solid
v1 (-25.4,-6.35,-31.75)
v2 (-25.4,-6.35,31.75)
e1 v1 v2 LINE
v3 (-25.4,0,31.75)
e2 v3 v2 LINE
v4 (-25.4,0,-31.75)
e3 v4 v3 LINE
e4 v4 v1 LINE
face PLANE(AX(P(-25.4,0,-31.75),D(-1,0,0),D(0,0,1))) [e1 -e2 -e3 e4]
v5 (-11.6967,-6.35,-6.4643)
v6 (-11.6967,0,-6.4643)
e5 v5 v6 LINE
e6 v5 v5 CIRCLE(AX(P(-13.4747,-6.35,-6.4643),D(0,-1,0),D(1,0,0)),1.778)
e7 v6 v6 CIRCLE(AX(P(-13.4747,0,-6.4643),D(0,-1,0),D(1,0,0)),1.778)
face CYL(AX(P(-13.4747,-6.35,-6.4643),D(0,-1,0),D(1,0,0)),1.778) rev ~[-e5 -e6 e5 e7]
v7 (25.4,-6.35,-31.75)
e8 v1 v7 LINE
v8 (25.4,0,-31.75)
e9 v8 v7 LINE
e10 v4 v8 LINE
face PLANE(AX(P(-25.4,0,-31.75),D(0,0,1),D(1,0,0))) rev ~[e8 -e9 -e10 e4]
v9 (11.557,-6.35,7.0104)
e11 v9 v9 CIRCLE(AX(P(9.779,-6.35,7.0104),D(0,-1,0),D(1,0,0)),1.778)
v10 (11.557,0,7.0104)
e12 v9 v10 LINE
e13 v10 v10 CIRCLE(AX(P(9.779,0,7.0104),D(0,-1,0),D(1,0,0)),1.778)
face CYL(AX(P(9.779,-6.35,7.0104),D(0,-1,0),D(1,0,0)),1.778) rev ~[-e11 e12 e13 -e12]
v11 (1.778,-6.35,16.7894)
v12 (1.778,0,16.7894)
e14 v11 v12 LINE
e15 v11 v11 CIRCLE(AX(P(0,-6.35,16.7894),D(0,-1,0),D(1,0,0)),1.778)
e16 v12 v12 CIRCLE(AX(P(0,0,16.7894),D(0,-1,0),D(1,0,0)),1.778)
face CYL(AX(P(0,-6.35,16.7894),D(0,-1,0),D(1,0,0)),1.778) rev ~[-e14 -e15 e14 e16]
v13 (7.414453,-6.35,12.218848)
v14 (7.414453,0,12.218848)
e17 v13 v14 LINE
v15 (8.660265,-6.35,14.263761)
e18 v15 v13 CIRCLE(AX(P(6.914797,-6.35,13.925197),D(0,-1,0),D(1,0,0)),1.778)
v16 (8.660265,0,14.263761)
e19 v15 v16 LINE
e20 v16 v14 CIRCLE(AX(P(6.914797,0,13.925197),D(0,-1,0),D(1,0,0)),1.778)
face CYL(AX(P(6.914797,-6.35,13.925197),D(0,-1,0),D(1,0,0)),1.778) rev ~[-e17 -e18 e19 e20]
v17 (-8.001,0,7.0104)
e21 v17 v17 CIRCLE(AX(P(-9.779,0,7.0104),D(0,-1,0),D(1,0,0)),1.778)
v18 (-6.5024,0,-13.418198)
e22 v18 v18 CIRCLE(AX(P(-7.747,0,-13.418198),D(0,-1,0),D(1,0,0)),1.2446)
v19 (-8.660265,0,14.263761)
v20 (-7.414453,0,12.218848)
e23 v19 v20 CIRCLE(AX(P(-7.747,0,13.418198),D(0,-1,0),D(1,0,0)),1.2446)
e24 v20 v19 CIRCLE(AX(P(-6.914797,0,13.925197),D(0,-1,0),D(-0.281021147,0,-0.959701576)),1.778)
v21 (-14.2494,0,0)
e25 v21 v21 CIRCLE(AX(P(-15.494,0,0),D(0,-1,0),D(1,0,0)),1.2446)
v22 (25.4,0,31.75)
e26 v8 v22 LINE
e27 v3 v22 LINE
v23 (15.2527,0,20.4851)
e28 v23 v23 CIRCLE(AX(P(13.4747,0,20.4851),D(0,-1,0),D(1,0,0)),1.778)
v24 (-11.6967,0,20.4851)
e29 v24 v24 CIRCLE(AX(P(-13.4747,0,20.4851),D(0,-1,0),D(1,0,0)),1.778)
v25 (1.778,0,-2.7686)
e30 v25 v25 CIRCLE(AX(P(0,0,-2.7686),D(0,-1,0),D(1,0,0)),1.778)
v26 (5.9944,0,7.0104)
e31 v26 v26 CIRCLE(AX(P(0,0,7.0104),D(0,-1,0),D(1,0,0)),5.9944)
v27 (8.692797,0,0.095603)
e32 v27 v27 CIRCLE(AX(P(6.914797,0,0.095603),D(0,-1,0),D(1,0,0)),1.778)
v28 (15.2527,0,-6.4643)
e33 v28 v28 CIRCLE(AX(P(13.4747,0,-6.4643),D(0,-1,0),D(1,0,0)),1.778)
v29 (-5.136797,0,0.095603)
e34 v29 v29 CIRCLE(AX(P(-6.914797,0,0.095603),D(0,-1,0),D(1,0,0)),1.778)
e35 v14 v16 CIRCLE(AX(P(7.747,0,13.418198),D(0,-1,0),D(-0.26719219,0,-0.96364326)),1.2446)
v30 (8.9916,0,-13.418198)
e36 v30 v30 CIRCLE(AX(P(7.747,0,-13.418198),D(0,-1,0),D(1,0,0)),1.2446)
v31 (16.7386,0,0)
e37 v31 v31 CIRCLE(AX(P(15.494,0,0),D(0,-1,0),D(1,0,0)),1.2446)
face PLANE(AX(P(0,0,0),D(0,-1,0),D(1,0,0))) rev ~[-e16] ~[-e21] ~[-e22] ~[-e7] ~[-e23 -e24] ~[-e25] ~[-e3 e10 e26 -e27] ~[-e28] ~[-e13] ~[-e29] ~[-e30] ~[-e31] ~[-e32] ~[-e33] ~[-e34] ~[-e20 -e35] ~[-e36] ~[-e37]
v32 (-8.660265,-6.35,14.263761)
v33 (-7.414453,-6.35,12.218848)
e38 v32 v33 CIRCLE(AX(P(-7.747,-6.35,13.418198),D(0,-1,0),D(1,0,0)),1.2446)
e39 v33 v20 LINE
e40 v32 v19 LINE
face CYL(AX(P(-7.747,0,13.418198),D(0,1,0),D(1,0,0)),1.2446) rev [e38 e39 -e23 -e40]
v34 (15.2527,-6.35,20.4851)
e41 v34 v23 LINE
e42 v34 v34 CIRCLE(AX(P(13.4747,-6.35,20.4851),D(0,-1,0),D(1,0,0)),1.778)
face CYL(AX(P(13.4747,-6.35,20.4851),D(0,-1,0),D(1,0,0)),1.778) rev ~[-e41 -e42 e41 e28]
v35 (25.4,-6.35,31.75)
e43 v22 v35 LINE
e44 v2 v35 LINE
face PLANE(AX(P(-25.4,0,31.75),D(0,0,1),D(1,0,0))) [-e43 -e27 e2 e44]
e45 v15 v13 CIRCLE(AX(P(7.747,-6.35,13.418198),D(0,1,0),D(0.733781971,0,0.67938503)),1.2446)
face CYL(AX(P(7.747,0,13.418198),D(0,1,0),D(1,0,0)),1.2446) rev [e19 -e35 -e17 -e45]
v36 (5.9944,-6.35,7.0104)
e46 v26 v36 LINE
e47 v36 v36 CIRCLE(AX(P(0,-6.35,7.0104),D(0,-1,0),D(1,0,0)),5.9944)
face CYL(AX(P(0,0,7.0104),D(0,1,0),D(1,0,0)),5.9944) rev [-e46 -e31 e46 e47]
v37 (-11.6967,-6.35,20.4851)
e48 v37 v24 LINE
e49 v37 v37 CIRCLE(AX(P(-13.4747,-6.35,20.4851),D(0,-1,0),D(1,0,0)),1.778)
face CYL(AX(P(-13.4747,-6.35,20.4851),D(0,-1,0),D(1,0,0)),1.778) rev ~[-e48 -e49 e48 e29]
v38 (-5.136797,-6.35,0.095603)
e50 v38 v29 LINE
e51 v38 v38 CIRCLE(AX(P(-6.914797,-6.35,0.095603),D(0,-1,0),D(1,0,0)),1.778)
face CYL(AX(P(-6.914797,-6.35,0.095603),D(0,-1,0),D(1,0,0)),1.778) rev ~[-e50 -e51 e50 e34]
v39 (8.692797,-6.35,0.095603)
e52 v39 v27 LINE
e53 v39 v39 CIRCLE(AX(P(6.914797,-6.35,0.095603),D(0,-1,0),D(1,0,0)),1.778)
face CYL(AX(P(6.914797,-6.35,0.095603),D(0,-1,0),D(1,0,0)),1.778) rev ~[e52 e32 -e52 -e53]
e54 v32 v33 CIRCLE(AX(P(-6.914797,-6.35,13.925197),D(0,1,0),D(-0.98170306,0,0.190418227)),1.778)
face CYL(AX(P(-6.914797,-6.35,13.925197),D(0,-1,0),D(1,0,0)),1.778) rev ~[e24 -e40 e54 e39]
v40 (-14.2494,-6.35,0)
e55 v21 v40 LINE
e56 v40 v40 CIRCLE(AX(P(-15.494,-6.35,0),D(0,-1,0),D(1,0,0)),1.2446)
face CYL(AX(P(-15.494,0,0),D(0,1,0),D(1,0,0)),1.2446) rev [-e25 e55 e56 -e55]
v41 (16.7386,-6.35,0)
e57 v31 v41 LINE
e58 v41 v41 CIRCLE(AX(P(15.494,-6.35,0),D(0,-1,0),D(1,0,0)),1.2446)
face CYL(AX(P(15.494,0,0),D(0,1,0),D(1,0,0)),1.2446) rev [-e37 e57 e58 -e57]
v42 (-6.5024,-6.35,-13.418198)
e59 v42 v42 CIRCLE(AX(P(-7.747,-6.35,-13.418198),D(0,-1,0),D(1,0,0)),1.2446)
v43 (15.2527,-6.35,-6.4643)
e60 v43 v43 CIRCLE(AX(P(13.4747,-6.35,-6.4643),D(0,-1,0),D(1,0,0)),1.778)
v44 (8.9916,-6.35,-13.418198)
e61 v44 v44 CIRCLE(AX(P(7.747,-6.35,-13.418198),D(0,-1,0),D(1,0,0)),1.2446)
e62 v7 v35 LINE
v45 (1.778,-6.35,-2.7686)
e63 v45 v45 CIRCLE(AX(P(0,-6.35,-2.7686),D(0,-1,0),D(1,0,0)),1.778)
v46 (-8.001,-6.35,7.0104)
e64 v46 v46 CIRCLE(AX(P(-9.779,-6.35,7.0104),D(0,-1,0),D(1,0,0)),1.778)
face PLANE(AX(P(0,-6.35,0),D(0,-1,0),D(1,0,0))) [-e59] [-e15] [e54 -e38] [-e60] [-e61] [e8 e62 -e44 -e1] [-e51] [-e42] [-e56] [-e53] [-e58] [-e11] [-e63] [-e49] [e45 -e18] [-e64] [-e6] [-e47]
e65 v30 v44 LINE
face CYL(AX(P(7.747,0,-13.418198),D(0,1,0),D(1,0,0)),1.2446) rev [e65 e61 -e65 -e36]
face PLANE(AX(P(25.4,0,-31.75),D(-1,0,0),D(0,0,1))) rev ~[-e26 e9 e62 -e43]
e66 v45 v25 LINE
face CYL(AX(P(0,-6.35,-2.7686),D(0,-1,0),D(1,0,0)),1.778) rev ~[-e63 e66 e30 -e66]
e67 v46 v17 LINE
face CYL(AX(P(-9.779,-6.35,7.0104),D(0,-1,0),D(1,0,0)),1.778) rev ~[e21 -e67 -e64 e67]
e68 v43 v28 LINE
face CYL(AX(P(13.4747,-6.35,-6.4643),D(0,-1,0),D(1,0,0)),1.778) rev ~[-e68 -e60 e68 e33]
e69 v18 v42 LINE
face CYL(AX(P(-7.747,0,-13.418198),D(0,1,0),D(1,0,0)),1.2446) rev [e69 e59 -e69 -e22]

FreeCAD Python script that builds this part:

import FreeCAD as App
import Part
import Sketcher

V = App.Vector
Q = App.Units.Quantity

doc = App.newDocument("Part")
params = doc.addObject("Spreadsheet::Sheet", "Params")
for row, (alias, value) in enumerate([
    ("sketch1_width", "2 in"),
    ("sketch1_diameter", "0.098 in"),
    ("sketch1_diameter2", "0.472 in"),
    ("sketch1_height", "2.5 in"),
    ("pad1_length", "0.25 in"),
    ("sketch2_diameter", "0.14 in"),
    ("pocket1_length", "1 in"),
], start=1):
    params.set(f"A{row}", alias)
    params.set(f"B{row}", "=" + value)
    params.setAlias(f"B{row}", alias)

body = doc.addObject("PartDesign::Body", "Body")

# Sketch on XZ plane
sketch1 = body.newObject("Sketcher::SketchObject", "Sketch")
sketch1.AttachmentSupport = (doc.getObject("XZ_Plane"), [""])
sketch1.MapMode = "FlatFace"
sketch1.addGeometry([
    Part.LineSegment(V(-25.4, 31.8, 0), V(-25.4, -31.8, 0)),  # 0
    Part.LineSegment(V(-25.4, -31.8, 0), V(25.4, -31.8, 0)),  # 1
    Part.LineSegment(V(25.4, -31.8, 0), V(25.4, 31.8, 0)),  # 2
    Part.LineSegment(V(25.4, 31.8, 0), V(-25.4, 31.8, 0)),  # 3
    Part.Circle(V(-7.7, -13.4, 0), V(0, 0, 1), 1.2),  # 4
    Part.Circle(V(-15.5, 0, 0), V(0, 0, 1), 1.2),  # 5
    Part.Circle(V(7.7, -13.4, 0), V(0, 0, 1), 1.2),  # 6
    Part.Circle(V(15.5, 0, 0), V(0, 0, 1), 1.2),  # 7
    Part.Circle(V(-7.7, 13.4, 0), V(0, 0, 1), 1.2),  # 8
    Part.Circle(V(0, 7, 0), V(0, 0, 1), 6),  # 9
    Part.Circle(V(7.7, 13.4, 0), V(0, 0, 1), 1.2),  # 10
], False)
sketch1.addConstraint([
    Sketcher.Constraint("Coincident", 0, 2, 1, 1),
    Sketcher.Constraint("Coincident", 1, 2, 2, 1),
    Sketcher.Constraint("Coincident", 2, 2, 3, 1),
    Sketcher.Constraint("Coincident", 3, 2, 0, 1),
    Sketcher.Constraint("Vertical", 0),
    Sketcher.Constraint("Horizontal", 1),
    Sketcher.Constraint("Vertical", 2),
    Sketcher.Constraint("Horizontal", 3),
    Sketcher.Constraint("Equal", 4, 5),
    Sketcher.Constraint("Equal", 5, 6),
    Sketcher.Constraint("Equal", 6, 7),
    Sketcher.Constraint("Equal", 7, 8),
    Sketcher.Constraint("Equal", 8, 10),
    Sketcher.Constraint("Symmetric", 5, 3, 7, 3, -1, 1),
    Sketcher.Constraint("Symmetric", 6, 3, 8, 3, -1, 1),
    Sketcher.Constraint("Symmetric", 4, 3, 10, 3, -1, 1),
    Sketcher.Constraint("Symmetric", 0, 2, 2, 2, -1, 1),
    Sketcher.Constraint("Symmetric", 4, 3, 6, 3, -2),
    Sketcher.Constraint("PointOnObject", 5, 3, -1),
    Sketcher.Constraint("PointOnObject", 9, 3, -2),
    Sketcher.Constraint("DistanceX", 1, 1, 1, 2, Q("2 in")),
    Sketcher.Constraint("Diameter", 4, Q("0.098 in")),
    Sketcher.Constraint("Diameter", 9, Q("0.472 in")),
    Sketcher.Constraint("DistanceY", 0, 2, 0, 1, Q("2.5 in")),
    Sketcher.Constraint("DistanceX", 5, 3, -1, 1, Q("0.61 in")),
    Sketcher.Constraint("DistanceX", 4, 3, 6, 3, Q("0.61 in")),
    Sketcher.Constraint("DistanceY", -1, 1, 9, 3, Q("0.276 in")),
    Sketcher.Constraint("DistanceY", 9, 3, 8, 3, Q("6.407798 mm")),
])
sketch1.setExpression("Constraints[20]", "Params.sketch1_width")
sketch1.setExpression("Constraints[21]", "Params.sketch1_diameter")
sketch1.setExpression("Constraints[22]", "Params.sketch1_diameter2")
sketch1.setExpression("Constraints[23]", "Params.sketch1_height")
pad1 = body.newObject("PartDesign::Pad", "Pad")
pad1.Profile = sketch1
pad1.setExpression("Length", "Params.pad1_length")

# Sketch on XZ plane
sketch2 = body.newObject("Sketcher::SketchObject", "Sketch001")
sketch2.AttachmentSupport = (doc.getObject("XZ_Plane"), [""])
sketch2.MapMode = "FlatFace"
sketch2.AttachmentOffset = App.Placement(V(0, 0, 0.25 * 25.4), App.Rotation())
sketch2.addGeometry([
    Part.Circle(V(-9.8, 7, 0), V(0, 0, 1), 1.8),  # 0
    Part.Circle(V(-6.9, 0.1, 0), V(0, 0, 1), 1.8),  # 1
    Part.Circle(V(0, -2.8, 0), V(0, 0, 1), 1.8),  # 2
    Part.Circle(V(6.9, 0.1, 0), V(0, 0, 1), 1.8),  # 3
    Part.Circle(V(9.8, 7, 0), V(0, 0, 1), 1.8),  # 4
    Part.Circle(V(6.9, 13.9, 0), V(0, 0, 1), 1.8),  # 5
    Part.Circle(V(0, 16.8, 0), V(0, 0, 1), 1.8),  # 6
    Part.Circle(V(-6.9, 13.9, 0), V(0, 0, 1), 1.8),  # 7
    Part.Circle(V(-13.5, 20.5, 0), V(0, 0, 1), 1.8),  # 8
    Part.Circle(V(13.5, 20.5, 0), V(0, 0, 1), 1.8),  # 9
    Part.Circle(V(13.5, -6.5, 0), V(0, 0, 1), 1.8),  # 10
    Part.Circle(V(-13.5, -6.5, 0), V(0, 0, 1), 1.8),  # 11
], False)
sketch2.addConstraint([
    Sketcher.Constraint("Equal", 0, 1),
    Sketcher.Constraint("Equal", 1, 2),
    Sketcher.Constraint("Equal", 2, 3),
    Sketcher.Constraint("Equal", 3, 4),
    Sketcher.Constraint("Equal", 4, 5),
    Sketcher.Constraint("Equal", 5, 6),
    Sketcher.Constraint("Equal", 6, 7),
    Sketcher.Constraint("Equal", 7, 8),
    Sketcher.Constraint("Equal", 8, 9),
    Sketcher.Constraint("Equal", 9, 10),
    Sketcher.Constraint("Equal", 10, 11),
    Sketcher.Constraint("Symmetric", 1, 3, 3, 3, -2),
    Sketcher.Constraint("Symmetric", 0, 3, 4, 3, -2),
    Sketcher.Constraint("Symmetric", 5, 3, 7, 3, -2),
    Sketcher.Constraint("Symmetric", 8, 3, 9, 3, -2),
    Sketcher.Constraint("Symmetric", 10, 3, 11, 3, -2),
    Sketcher.Constraint("PointOnObject", 2, 3, -2),
    Sketcher.Constraint("PointOnObject", 6, 3, -2),
    Sketcher.Constraint("Vertical", 3, 3, 5, 3),
    Sketcher.Constraint("Vertical", 9, 3, 10, 3),
    Sketcher.Constraint("Diameter", 0, Q("0.14 in")),
    Sketcher.Constraint("DistanceX", 0, 3, 4, 3, Q("0.77 in")),
    Sketcher.Constraint("DistanceY", -1, 1, 0, 3, Q("0.276 in")),
    Sketcher.Constraint("DistanceY", 2, 3, -1, 1, Q("0.109 in")),
    Sketcher.Constraint("DistanceY", -1, 1, 6, 3, Q("0.661 in")),
    Sketcher.Constraint("DistanceX", 8, 3, -1, 1, Q("0.5305 in")),
    Sketcher.Constraint("DistanceY", -1, 1, 8, 3, Q("0.8065 in")),
    Sketcher.Constraint("DistanceY", 10, 3, -1, 1, Q("0.2545 in")),
    Sketcher.Constraint("DistanceX", 1, 3, -1, 1, Q("6.914797 mm")),
    Sketcher.Constraint("DistanceY", -1, 1, 1, 3, Q("0.095603 mm")),
    Sketcher.Constraint("DistanceY", -1, 1, 5, 3, Q("13.925197 mm")),
])
sketch2.setExpression("Constraints[20]", "Params.sketch2_diameter")
pocket1 = body.newObject("PartDesign::Pocket", "Pocket")
pocket1.Profile = sketch2
pocket1.setExpression("Length", "Params.pocket1_length")

doc.recompute()
